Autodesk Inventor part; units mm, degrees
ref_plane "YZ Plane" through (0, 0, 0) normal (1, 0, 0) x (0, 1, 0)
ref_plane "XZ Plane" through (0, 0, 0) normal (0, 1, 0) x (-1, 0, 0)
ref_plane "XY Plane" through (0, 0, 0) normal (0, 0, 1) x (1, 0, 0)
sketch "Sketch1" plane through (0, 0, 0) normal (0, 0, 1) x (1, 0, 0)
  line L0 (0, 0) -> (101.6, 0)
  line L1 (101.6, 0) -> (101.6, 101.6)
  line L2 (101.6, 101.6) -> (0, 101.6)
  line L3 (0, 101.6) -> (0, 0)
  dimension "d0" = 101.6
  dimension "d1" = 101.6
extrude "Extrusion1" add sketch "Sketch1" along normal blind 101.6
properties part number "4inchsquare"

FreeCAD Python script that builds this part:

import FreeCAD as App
import Part
import Sketcher

V = App.Vector
Q = App.Units.Quantity


def add_polygon(sketch, points):
    """Adds a closed chain of lines whose ends are joined by coincident constraints."""
    first, n = sketch.GeometryCount, len(points)
    for a, b in zip(points, points[1:] + points[:1]):
        sketch.addGeometry(Part.LineSegment(App.Vector(*a, 0), App.Vector(*b, 0)), False)
    for i in range(n):
        sketch.addConstraint(Sketcher.Constraint("Coincident", first + i, 2, first + (i + 1) % n, 1))

doc = App.newDocument("Part")
params = doc.addObject("Spreadsheet::Sheet", "Params")
for row, (alias, value) in enumerate([
    ("sketch1_width", "4 in"),
    ("pad1_length", "4 in"),
], start=1):
    params.set(f"A{row}", alias)
    params.set(f"B{row}", "=" + value)
    params.setAlias(f"B{row}", alias)

body = doc.addObject("PartDesign::Body", "Body")

# Sketch on XY plane
sketch1 = body.newObject("Sketcher::SketchObject", "Sketch")
sketch1.AttachmentSupport = (doc.getObject("XY_Plane"), [""])
sketch1.MapMode = "FlatFace"
add_polygon(sketch1, [(0, 102), (0, 0), (102, 0), (102, 102)])  # lines 0-3
sketch1.addConstraint(Sketcher.Constraint("Vertical", 0))
sketch1.addConstraint(Sketcher.Constraint("Horizontal", 1))
sketch1.addConstraint(Sketcher.Constraint("Vertical", 2))
sketch1.addConstraint(Sketcher.Constraint("Horizontal", 3))
sketch1.addConstraint(Sketcher.Constraint("Coincident", 0, 2, -1, 1))
sketch1.addConstraint(Sketcher.Constraint("Equal", 3, 0))
sketch1.addConstraint(Sketcher.Constraint("DistanceX", 1, 1, 1, 2, Q("4 in")))
sketch1.setExpression("Constraints[10]", "Params.sketch1_width")
pad1 = body.newObject("PartDesign::Pad", "Pad")
pad1.Profile = sketch1
pad1.setExpression("Length", "Params.pad1_length")

doc.recompute()
